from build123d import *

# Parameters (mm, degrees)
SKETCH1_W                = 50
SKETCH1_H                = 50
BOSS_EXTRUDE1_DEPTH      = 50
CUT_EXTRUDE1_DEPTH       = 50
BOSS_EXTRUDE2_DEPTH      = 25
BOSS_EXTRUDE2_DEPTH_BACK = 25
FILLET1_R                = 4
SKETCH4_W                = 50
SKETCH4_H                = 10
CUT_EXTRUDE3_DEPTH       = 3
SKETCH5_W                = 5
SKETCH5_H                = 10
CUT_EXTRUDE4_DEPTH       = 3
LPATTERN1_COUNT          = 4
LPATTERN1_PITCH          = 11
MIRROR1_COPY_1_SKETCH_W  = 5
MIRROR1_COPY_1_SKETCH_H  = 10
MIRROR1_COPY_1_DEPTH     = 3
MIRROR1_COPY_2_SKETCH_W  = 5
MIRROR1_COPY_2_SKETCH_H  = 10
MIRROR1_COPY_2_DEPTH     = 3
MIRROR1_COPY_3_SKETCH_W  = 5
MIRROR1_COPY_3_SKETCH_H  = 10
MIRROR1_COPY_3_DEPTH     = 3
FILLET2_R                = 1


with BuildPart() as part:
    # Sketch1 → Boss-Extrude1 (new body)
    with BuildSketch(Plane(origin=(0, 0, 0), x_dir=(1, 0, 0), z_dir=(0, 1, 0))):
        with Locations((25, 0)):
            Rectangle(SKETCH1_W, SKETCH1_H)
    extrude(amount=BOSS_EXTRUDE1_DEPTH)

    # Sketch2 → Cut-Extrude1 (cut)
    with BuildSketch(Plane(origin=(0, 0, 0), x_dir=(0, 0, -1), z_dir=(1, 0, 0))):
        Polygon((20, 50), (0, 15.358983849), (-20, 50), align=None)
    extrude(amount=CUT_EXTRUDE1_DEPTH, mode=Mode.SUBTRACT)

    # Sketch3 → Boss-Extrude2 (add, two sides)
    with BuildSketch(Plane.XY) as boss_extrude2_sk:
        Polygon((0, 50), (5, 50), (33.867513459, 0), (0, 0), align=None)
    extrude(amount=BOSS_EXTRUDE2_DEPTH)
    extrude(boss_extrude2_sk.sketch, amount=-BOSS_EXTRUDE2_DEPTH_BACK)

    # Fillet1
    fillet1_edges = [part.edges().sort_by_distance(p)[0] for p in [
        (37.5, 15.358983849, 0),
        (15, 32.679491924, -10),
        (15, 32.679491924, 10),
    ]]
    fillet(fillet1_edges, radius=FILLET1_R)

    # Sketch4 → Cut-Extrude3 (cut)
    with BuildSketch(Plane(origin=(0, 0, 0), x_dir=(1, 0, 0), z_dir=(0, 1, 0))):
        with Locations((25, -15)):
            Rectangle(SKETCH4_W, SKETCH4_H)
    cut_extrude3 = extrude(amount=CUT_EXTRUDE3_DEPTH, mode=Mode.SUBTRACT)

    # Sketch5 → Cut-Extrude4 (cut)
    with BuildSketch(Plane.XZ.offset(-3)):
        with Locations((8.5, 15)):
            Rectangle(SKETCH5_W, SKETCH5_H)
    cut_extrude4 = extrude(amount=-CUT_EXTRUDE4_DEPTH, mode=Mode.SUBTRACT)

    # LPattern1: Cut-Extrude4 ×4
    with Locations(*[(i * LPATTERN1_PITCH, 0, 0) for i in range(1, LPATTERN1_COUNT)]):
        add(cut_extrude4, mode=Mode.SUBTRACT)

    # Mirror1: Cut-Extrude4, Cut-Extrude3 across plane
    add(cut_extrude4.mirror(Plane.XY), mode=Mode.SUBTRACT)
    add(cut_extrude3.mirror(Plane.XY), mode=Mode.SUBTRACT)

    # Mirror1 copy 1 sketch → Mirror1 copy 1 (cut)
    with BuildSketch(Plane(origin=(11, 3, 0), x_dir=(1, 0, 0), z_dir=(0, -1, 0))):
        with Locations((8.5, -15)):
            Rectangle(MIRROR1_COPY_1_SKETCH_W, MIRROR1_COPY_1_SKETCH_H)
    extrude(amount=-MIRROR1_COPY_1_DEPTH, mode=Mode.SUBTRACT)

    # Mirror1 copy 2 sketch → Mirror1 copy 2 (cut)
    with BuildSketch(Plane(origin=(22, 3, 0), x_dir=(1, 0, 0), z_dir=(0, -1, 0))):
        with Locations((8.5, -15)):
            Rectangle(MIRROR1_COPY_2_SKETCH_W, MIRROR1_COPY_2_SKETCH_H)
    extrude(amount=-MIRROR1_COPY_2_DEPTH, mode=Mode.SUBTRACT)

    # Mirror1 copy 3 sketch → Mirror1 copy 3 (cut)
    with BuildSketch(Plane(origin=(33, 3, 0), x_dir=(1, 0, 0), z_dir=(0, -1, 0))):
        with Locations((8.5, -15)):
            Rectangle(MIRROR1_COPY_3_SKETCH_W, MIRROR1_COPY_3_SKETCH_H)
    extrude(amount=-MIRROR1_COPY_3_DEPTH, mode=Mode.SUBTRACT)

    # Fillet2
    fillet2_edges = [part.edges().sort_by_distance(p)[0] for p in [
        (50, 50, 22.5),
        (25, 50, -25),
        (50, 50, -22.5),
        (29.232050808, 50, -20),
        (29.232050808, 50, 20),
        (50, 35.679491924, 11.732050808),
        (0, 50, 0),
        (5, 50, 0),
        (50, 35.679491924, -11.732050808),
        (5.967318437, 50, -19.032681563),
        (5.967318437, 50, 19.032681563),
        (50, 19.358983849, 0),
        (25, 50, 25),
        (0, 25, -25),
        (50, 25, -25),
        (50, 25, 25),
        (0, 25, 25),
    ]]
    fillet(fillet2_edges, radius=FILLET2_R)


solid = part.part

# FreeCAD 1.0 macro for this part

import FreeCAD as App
import Part
import Sketcher
Q = App.Units.Quantity


def edges_at(feature, points):
    """Names of the edges that pass closest to the given points."""
    edges = feature.Shape.Edges
    near = lambda p: min(range(len(edges)), key=lambda i: edges[i].distToShape(Part.Vertex(*p))[0])
    return sorted({f"Edge{near(p) + 1}" for p in points})

doc = App.newDocument("Part")
params = doc.addObject("Spreadsheet::Sheet", "Params")
for row, (alias, value) in enumerate([
    ("sketch1_width", "50 mm"),
    ("pad1_length", "50 mm"),
    ("sketch2_height", "40 mm"),
    ("pocket1_length", "50 mm"),
    ("sketch3_width", "5 mm"),
    ("sketch3_height", "50 mm"),
    ("pad2_length", "25 mm"),
    ("pad2_length2", "25 mm"),
    ("fillet_radius", "4 mm"),
    ("sketch4_width", "50 mm"),
    ("sketch4_height", "10 mm"),
    ("pocket2_length", "3 mm"),
    ("sketch5_width", "5 mm"),
    ("sketch5_height", "10 mm"),
    ("pocket3_length", "3 mm"),
    ("linearpattern_pitch", "11 mm"),
    ("sketch6_width", "5 mm"),
    ("sketch6_height", "10 mm"),
    ("pocket4_length", "3 mm"),
    ("sketch7_width", "5 mm"),
    ("sketch7_height", "10 mm"),
    ("pocket5_length", "3 mm"),
    ("sketch8_width", "5 mm"),
    ("sketch8_height", "10 mm"),
    ("pocket6_length", "3 mm"),
    ("fillet2_radius", "1 mm"),
], start=1):
    params.set(f"A{row}", alias)
    params.set(f"B{row}", "=" + value)
    params.setAlias(f"B{row}", alias)

body = doc.addObject("PartDesign::Body", "Body")

# Sketch on XZ plane
sketch1 = body.newObject("Sketcher::SketchObject", "Sketch")
sketch1.AttachmentSupport = (doc.getObject("XZ_Plane"), [""])
sketch1.MapMode = "FlatFace"
sketch1.addGeometry([
    Part.LineSegment(App.Vector(0, -25, 0), App.Vector(0, 25, 0)),
    Part.LineSegment(App.Vector(0, 25, 0), App.Vector(50, 25, 0)),
    Part.LineSegment(App.Vector(50, 25, 0), App.Vector(50, -25, 0)),
    Part.LineSegment(App.Vector(50, -25, 0), App.Vector(0, -25, 0)),
], False)
sketch1.addConstraint([
    Sketcher.Constraint("Coincident", 0, 2, 1, 1),
    Sketcher.Constraint("Coincident", 1, 2, 2, 1),
    Sketcher.Constraint("Coincident", 2, 2, 3, 1),
    Sketcher.Constraint("Coincident", 3, 2, 0, 1),
    Sketcher.Constraint("Vertical", 0),
    Sketcher.Constraint("Horizontal", 1),
    Sketcher.Constraint("Vertical", 2),
    Sketcher.Constraint("Horizontal", 3),
    Sketcher.Constraint("Symmetric", 0, 2, 3, 2, -1, 1),
    Sketcher.Constraint("Equal", 3, 0),
    Sketcher.Constraint("DistanceX", 1, 1, 1, 2, 50.0),
])
sketch1.setExpression("Constraints[10]", "Params.sketch1_width")
pad1 = body.newObject("PartDesign::Pad", "Pad")
pad1.Profile = sketch1
pad1.setExpression("Length", "Params.pad1_length")
pad1.Reversed = True

# Sketch on YZ plane
sketch2 = body.newObject("Sketcher::SketchObject", "Sketch001")
sketch2.AttachmentSupport = (doc.getObject("YZ_Plane"), [""])
sketch2.MapMode = "FlatFace"
sketch2.addGeometry([
    Part.LineSegment(App.Vector(15, 0, 0), App.Vector(50, -20, 0)),
    Part.LineSegment(App.Vector(50, -20, 0), App.Vector(50, 20, 0)),
    Part.LineSegment(App.Vector(50, 20, 0), App.Vector(15, 0, 0)),
], False)
sketch2.addConstraint([
    Sketcher.Constraint("Coincident", 0, 2, 1, 1),
    Sketcher.Constraint("Coincident", 1, 2, 2, 1),
    Sketcher.Constraint("Coincident", 2, 2, 0, 1),
    Sketcher.Constraint("Vertical", 1),
    Sketcher.Constraint("PointOnObject", 2, 2, -1),
    Sketcher.Constraint("Equal", 0, 2),
    Sketcher.Constraint("DistanceY", 1, 1, 1, 2, 40.0),
    Sketcher.Constraint("Angle", 0, Q("-30 deg")),
    Sketcher.Constraint("DistanceX", -1, 1, 0, 2, 50.0),
])
sketch2.setExpression("Constraints[6]", "Params.sketch2_height")
pocket1 = body.newObject("PartDesign::Pocket", "Pocket")
pocket1.Profile = sketch2
pocket1.setExpression("Length", "Params.pocket1_length")
pocket1.Reversed = True

# Sketch on XY plane
sketch3 = body.newObject("Sketcher::SketchObject", "Sketch002")
sketch3.AttachmentSupport = (doc.getObject("XY_Plane"), [""])
sketch3.MapMode = "FlatFace"
sketch3.addGeometry([
    Part.LineSegment(App.Vector(5, 50, 0), App.Vector(0, 50, 0)),
    Part.LineSegment(App.Vector(0, 50, 0), App.Vector(0, 0, 0)),
    Part.LineSegment(App.Vector(0, 0, 0), App.Vector(34, 0, 0)),
    Part.LineSegment(App.Vector(34, 0, 0), App.Vector(5, 50, 0)),
], False)
sketch3.addConstraint([
    Sketcher.Constraint("Coincident", 0, 2, 1, 1),
    Sketcher.Constraint("Coincident", 1, 2, 2, 1),
    Sketcher.Constraint("Coincident", 2, 2, 3, 1),
    Sketcher.Constraint("Coincident", 3, 2, 0, 1),
    Sketcher.Constraint("Horizontal", 0),
    Sketcher.Constraint("Vertical", 1),
    Sketcher.Constraint("Horizontal", 2),
    Sketcher.Constraint("Coincident", 1, 2, -1, 1),
    Sketcher.Constraint("DistanceX", 0, 2, 0, 1, 5.0),
    Sketcher.Constraint("DistanceY", 1, 2, 1, 1, 50.0),
    Sketcher.Constraint("Angle", 3, Q("120 deg")),
])
sketch3.setExpression("Constraints[8]", "Params.sketch3_width")
sketch3.setExpression("Constraints[9]", "Params.sketch3_height")
pad2 = body.newObject("PartDesign::Pad", "Pad001")
pad2.Profile = sketch3
pad2.Type = "TwoLengths"
pad2.setExpression("Length", "Params.pad2_length")
pad2.setExpression("Length2", "Params.pad2_length2")
doc.recompute()

fillet = body.newObject("PartDesign::Fillet", "Fillet")
fillet.Base = (pad2, edges_at(pad2, [(37.5, 15.359, 0), (15, 32.679, -10), (15, 32.679, 10)]))
fillet.setExpression("Radius", "Params.fillet_radius")

# Sketch on XZ plane
sketch4 = body.newObject("Sketcher::SketchObject", "Sketch003")
sketch4.AttachmentSupport = (doc.getObject("XZ_Plane"), [""])
sketch4.MapMode = "FlatFace"
sketch4.addGeometry([
    Part.LineSegment(App.Vector(0, 10, 0), App.Vector(0, 20, 0)),
    Part.LineSegment(App.Vector(0, 20, 0), App.Vector(50, 20, 0)),
    Part.LineSegment(App.Vector(50, 20, 0), App.Vector(50, 10, 0)),
    Part.LineSegment(App.Vector(50, 10, 0), App.Vector(0, 10, 0)),
], False)
sketch4.addConstraint([
    Sketcher.Constraint("Coincident", 0, 2, 1, 1),
    Sketcher.Constraint("Coincident", 1, 2, 2, 1),
    Sketcher.Constraint("Coincident", 2, 2, 3, 1),
    Sketcher.Constraint("Coincident", 3, 2, 0, 1),
    Sketcher.Constraint("Vertical", 0),
    Sketcher.Constraint("Horizontal", 1),
    Sketcher.Constraint("Vertical", 2),
    Sketcher.Constraint("Horizontal", 3),
    Sketcher.Constraint("PointOnObject", 0, 2, -2),
    Sketcher.Constraint("DistanceX", 1, 1, 1, 2, 50.0),
    Sketcher.Constraint("DistanceY", 0, 1, 0, 2, 10.0),
    Sketcher.Constraint("DistanceY", -1, 1, 0, 2, 20.0),
])
sketch4.setExpression("Constraints[9]", "Params.sketch4_width")
sketch4.setExpression("Constraints[10]", "Params.sketch4_height")
pocket2 = body.newObject("PartDesign::Pocket", "Pocket001")
pocket2.Profile = sketch4
pocket2.setExpression("Length", "Params.pocket2_length")

# Sketch on XZ plane
sketch5 = body.newObject("Sketcher::SketchObject", "Sketch004")
sketch5.AttachmentSupport = (doc.getObject("XZ_Plane"), [""])
sketch5.MapMode = "FlatFace"
sketch5.AttachmentOffset = App.Placement(App.Vector(0, 0, -3), App.Rotation())
sketch5.addGeometry([
    Part.LineSegment(App.Vector(6, 20, 0), App.Vector(6, 10, 0)),
    Part.LineSegment(App.Vector(6, 10, 0), App.Vector(11, 10, 0)),
    Part.LineSegment(App.Vector(11, 10, 0), App.Vector(11, 20, 0)),
    Part.LineSegment(App.Vector(11, 20, 0), App.Vector(6, 20, 0)),
], False)
sketch5.addConstraint([
    Sketcher.Constraint("Coincident", 0, 2, 1, 1),
    Sketcher.Constraint("Coincident", 1, 2, 2, 1),
    Sketcher.Constraint("Coincident", 2, 2, 3, 1),
    Sketcher.Constraint("Coincident", 3, 2, 0, 1),
    Sketcher.Constraint("Vertical", 0),
    Sketcher.Constraint("Horizontal", 1),
    Sketcher.Constraint("Vertical", 2),
    Sketcher.Constraint("Horizontal", 3),
    Sketcher.Constraint("DistanceX", 1, 1, 1, 2, 5.0),
    Sketcher.Constraint("DistanceY", 0, 2, 0, 1, 10.0),
    Sketcher.Constraint("DistanceX", -1, 1, 0, 2, 6.0),
    Sketcher.Constraint("DistanceY", -1, 1, 0, 2, 10.0),
])
sketch5.setExpression("Constraints[8]", "Params.sketch5_width")
sketch5.setExpression("Constraints[9]", "Params.sketch5_height")
pocket3 = body.newObject("PartDesign::Pocket", "Pocket002")
pocket3.Profile = sketch5
pocket3.setExpression("Length", "Params.pocket3_length")
doc.recompute()

linearpattern = body.newObject("PartDesign::LinearPattern", "LinearPattern")
linearpattern.Originals = [pocket3]
linearpattern.Direction = (doc.getObject("X_Axis"), [""])
linearpattern.Mode = "offset"
linearpattern.setExpression("Offset", "Params.linearpattern_pitch")
linearpattern.Occurrences = 4
body.Tip = linearpattern
doc.recompute()

mirrored = body.newObject("PartDesign::Mirrored", "Mirrored")
mirrored.Originals = [pocket3, pocket2]
mirrored.MirrorPlane = (doc.getObject("XY_Plane"), [""])
body.Tip = mirrored

# Sketch on XZ plane
sketch6 = body.newObject("Sketcher::SketchObject", "Sketch005")
sketch6.AttachmentSupport = (doc.getObject("XZ_Plane"), [""])
sketch6.MapMode = "FlatFace"
sketch6.AttachmentOffset = App.Placement(App.Vector(0, 0, -3), App.Rotation())
sketch6.addGeometry([
    Part.LineSegment(App.Vector(17, -10, 0), App.Vector(17, -20, 0)),
    Part.LineSegment(App.Vector(17, -20, 0), App.Vector(22, -20, 0)),
    Part.LineSegment(App.Vector(22, -20, 0), App.Vector(22, -10, 0)),
    Part.LineSegment(App.Vector(22, -10, 0), App.Vector(17, -10, 0)),
], False)
sketch6.addConstraint([
    Sketcher.Constraint("Coincident", 0, 2, 1, 1),
    Sketcher.Constraint("Coincident", 1, 2, 2, 1),
    Sketcher.Constraint("Coincident", 2, 2, 3, 1),
    Sketcher.Constraint("Coincident", 3, 2, 0, 1),
    Sketcher.Constraint("Vertical", 0),
    Sketcher.Constraint("Horizontal", 1),
    Sketcher.Constraint("Vertical", 2),
    Sketcher.Constraint("Horizontal", 3),
    Sketcher.Constraint("DistanceX", 1, 1, 1, 2, 5.0),
    Sketcher.Constraint("DistanceY", 0, 2, 0, 1, 10.0),
    Sketcher.Constraint("DistanceX", -1, 1, 0, 2, 17.0),
    Sketcher.Constraint("DistanceY", 0, 2, -1, 1, 20.0),
])
sketch6.setExpression("Constraints[8]", "Params.sketch6_width")
sketch6.setExpression("Constraints[9]", "Params.sketch6_height")
pocket4 = body.newObject("PartDesign::Pocket", "Pocket003")
pocket4.Profile = sketch6
pocket4.setExpression("Length", "Params.pocket4_length")

# Sketch on XZ plane
sketch7 = body.newObject("Sketcher::SketchObject", "Sketch006")
sketch7.AttachmentSupport = (doc.getObject("XZ_Plane"), [""])
sketch7.MapMode = "FlatFace"
sketch7.AttachmentOffset = App.Placement(App.Vector(0, 0, -3), App.Rotation())
sketch7.addGeometry([
    Part.LineSegment(App.Vector(28, -10, 0), App.Vector(28, -20, 0)),
    Part.LineSegment(App.Vector(28, -20, 0), App.Vector(33, -20, 0)),
    Part.LineSegment(App.Vector(33, -20, 0), App.Vector(33, -10, 0)),
    Part.LineSegment(App.Vector(33, -10, 0), App.Vector(28, -10, 0)),
], False)
sketch7.addConstraint([
    Sketcher.Constraint("Coincident", 0, 2, 1, 1),
    Sketcher.Constraint("Coincident", 1, 2, 2, 1),
    Sketcher.Constraint("Coincident", 2, 2, 3, 1),
    Sketcher.Constraint("Coincident", 3, 2, 0, 1),
    Sketcher.Constraint("Vertical", 0),
    Sketcher.Constraint("Horizontal", 1),
    Sketcher.Constraint("Vertical", 2),
    Sketcher.Constraint("Horizontal", 3),
    Sketcher.Constraint("DistanceX", 1, 1, 1, 2, 5.0),
    Sketcher.Constraint("DistanceY", 0, 2, 0, 1, 10.0),
    Sketcher.Constraint("DistanceX", -1, 1, 0, 2, 28.0),
    Sketcher.Constraint("DistanceY", 0, 2, -1, 1, 20.0),
])
sketch7.setExpression("Constraints[8]", "Params.sketch7_width")
sketch7.setExpression("Constraints[9]", "Params.sketch7_height")
pocket5 = body.newObject("PartDesign::Pocket", "Pocket004")
pocket5.Profile = sketch7
pocket5.setExpression("Length", "Params.pocket5_length")

# Sketch on XZ plane
sketch8 = body.newObject("Sketcher::SketchObject", "Sketch007")
sketch8.AttachmentSupport = (doc.getObject("XZ_Plane"), [""])
sketch8.MapMode = "FlatFace"
sketch8.AttachmentOffset = App.Placement(App.Vector(0, 0, -3), App.Rotation())
sketch8.addGeometry([
    Part.LineSegment(App.Vector(39, -10, 0), App.Vector(39, -20, 0)),
    Part.LineSegment(App.Vector(39, -20, 0), App.Vector(44, -20, 0)),
    Part.LineSegment(App.Vector(44, -20, 0), App.Vector(44, -10, 0)),
    Part.LineSegment(App.Vector(44, -10, 0), App.Vector(39, -10, 0)),
], False)
sketch8.addConstraint([
    Sketcher.Constraint("Coincident", 0, 2, 1, 1),
    Sketcher.Constraint("Coincident", 1, 2, 2, 1),
    Sketcher.Constraint("Coincident", 2, 2, 3, 1),
    Sketcher.Constraint("Coincident", 3, 2, 0, 1),
    Sketcher.Constraint("Vertical", 0),
    Sketcher.Constraint("Horizontal", 1),
    Sketcher.Constraint("Vertical", 2),
    Sketcher.Constraint("Horizontal", 3),
    Sketcher.Constraint("DistanceX", 1, 1, 1, 2, 5.0),
    Sketcher.Constraint("DistanceY", 0, 2, 0, 1, 10.0),
    Sketcher.Constraint("DistanceX", -1, 1, 0, 2, 39.0),
    Sketcher.Constraint("DistanceY", 0, 2, -1, 1, 20.0),
])
sketch8.setExpression("Constraints[8]", "Params.sketch8_width")
sketch8.setExpression("Constraints[9]", "Params.sketch8_height")
pocket6 = body.newObject("PartDesign::Pocket", "Pocket005")
pocket6.Profile = sketch8
pocket6.setExpression("Length", "Params.pocket6_length")
doc.recompute()

fillet2 = body.newObject("PartDesign::Fillet", "Fillet001")
fillet2.Base = (pocket6, edges_at(pocket6, [
    (50, 50, 22.5),
    (25, 50, -25),
    (50, 50, -22.5),
    (29.232, 50, -20),
    (29.232, 50, 20),
    (50, 35.679, 11.732),
    (0, 50, 0),
    (5, 50, 0),
    (50, 35.679, -11.732),
    (5.967, 50, -19.033),
    (5.967, 50, 19.033),
    (50, 19.359, 0),
    (25, 50, 25),
    (0, 25, -25),
    (50, 25, -25),
    (50, 25, 25),
    (0, 25, 25),
]))
fillet2.setExpression("Radius", "Params.fillet2_radius")

doc.recompute()
